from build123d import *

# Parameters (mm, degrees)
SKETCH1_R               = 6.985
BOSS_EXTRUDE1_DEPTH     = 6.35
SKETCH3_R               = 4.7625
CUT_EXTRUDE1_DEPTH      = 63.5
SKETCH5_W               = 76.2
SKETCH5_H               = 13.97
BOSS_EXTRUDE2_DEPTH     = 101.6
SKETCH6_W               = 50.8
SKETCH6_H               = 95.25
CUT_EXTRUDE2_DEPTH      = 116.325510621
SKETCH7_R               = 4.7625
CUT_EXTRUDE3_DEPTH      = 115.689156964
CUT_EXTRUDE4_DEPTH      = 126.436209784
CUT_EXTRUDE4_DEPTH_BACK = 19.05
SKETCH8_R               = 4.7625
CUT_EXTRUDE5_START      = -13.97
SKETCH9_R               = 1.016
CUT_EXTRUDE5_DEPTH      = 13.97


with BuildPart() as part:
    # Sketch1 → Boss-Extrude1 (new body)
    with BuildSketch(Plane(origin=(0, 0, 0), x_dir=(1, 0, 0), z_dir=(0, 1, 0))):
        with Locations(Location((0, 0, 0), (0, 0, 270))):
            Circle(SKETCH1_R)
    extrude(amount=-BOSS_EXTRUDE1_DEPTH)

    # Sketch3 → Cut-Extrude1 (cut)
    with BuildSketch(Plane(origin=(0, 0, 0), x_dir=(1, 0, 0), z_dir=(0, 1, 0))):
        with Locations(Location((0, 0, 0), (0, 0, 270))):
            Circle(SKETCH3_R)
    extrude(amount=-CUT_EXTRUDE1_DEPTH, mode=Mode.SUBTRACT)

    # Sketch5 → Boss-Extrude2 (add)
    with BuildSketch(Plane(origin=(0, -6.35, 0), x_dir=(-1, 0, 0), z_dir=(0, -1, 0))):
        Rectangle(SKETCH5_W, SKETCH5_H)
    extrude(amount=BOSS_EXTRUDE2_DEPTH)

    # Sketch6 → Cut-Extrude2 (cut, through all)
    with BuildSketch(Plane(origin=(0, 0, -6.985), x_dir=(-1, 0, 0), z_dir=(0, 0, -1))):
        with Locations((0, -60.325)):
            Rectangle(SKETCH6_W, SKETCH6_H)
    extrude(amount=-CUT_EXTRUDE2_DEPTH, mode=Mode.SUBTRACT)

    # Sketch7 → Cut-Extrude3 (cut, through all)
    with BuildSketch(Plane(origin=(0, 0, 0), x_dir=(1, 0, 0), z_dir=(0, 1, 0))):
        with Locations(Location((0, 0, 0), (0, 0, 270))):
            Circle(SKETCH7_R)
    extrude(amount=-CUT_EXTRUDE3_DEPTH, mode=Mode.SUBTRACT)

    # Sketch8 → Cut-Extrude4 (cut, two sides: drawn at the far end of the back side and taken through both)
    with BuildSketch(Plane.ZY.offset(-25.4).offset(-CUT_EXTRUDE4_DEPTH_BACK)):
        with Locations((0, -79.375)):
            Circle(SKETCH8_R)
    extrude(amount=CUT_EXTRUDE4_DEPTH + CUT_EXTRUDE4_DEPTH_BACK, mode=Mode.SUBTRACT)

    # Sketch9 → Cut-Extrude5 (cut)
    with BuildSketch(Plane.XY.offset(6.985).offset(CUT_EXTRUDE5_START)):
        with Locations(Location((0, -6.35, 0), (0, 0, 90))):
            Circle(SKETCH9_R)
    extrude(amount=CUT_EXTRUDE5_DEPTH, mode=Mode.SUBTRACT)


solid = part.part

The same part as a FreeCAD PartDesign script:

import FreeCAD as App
import Part
import Sketcher
Q = App.Units.Quantity

doc = App.newDocument("Part")
body = doc.addObject("PartDesign::Body", "Body")

# Sketch on XZ plane
sketch1 = body.newObject("Sketcher::SketchObject", "Sketch")
sketch1.AttachmentSupport = (doc.getObject("XZ_Plane"), [""])
sketch1.MapMode = "FlatFace"
sketch1.addGeometry(Part.Circle(App.Vector(0, 0, 0), App.Vector(0, 0, 1), 7), False)
sketch1.addConstraint(Sketcher.Constraint("Coincident", 0, 3, -1, 1))
sketch1.addConstraint(Sketcher.Constraint("Diameter", 0, Q("0.55 in")))
pad1 = body.newObject("PartDesign::Pad", "Pad")
pad1.Profile = sketch1
pad1.Length = Q("0.25 in")

# Sketch on XZ plane
sketch2 = body.newObject("Sketcher::SketchObject", "Sketch001")
sketch2.AttachmentSupport = (doc.getObject("XZ_Plane"), [""])
sketch2.MapMode = "FlatFace"
sketch2.addGeometry(Part.Circle(App.Vector(0, 0, 0), App.Vector(0, 0, 1), 4.8), False)
sketch2.addConstraint(Sketcher.Constraint("Coincident", 0, 3, -1, 1))
sketch2.addConstraint(Sketcher.Constraint("Diameter", 0, Q("0.375 in")))
pocket1 = body.newObject("PartDesign::Pocket", "Pocket")
pocket1.Profile = sketch2
pocket1.Length = Q("2.5 in")
pocket1.Reversed = True

# Sketch on XZ plane
sketch3 = body.newObject("Sketcher::SketchObject", "Sketch002")
sketch3.AttachmentSupport = (doc.getObject("XZ_Plane"), [""])
sketch3.MapMode = "FlatFace"
sketch3.AttachmentOffset = App.Placement(App.Vector(0, 0, 0.25 * 25.4), App.Rotation())
sketch3.addGeometry(Part.LineSegment(App.Vector(38, -7, 0), App.Vector(38, 7, 0)), False)
sketch3.addGeometry(Part.LineSegment(App.Vector(38, 7, 0), App.Vector(-38, 7, 0)), False)
sketch3.addGeometry(Part.LineSegment(App.Vector(-38, 7, 0), App.Vector(-38, -7, 0)), False)
sketch3.addGeometry(Part.LineSegment(App.Vector(-38, -7, 0), App.Vector(38, -7, 0)), False)
sketch3.addConstraint(Sketcher.Constraint("Coincident", 0, 2, 1, 1))
sketch3.addConstraint(Sketcher.Constraint("Coincident", 1, 2, 2, 1))
sketch3.addConstraint(Sketcher.Constraint("Coincident", 2, 2, 3, 1))
sketch3.addConstraint(Sketcher.Constraint("Coincident", 3, 2, 0, 1))
sketch3.addConstraint(Sketcher.Constraint("Vertical", 0))
sketch3.addConstraint(Sketcher.Constraint("Horizontal", 1))
sketch3.addConstraint(Sketcher.Constraint("Vertical", 2))
sketch3.addConstraint(Sketcher.Constraint("Horizontal", 3))
sketch3.addConstraint(Sketcher.Constraint("Symmetric", 0, 2, 2, 2, -1, 1))
sketch3.addConstraint(Sketcher.Constraint("DistanceX", 1, 2, 1, 1, Q("3 in")))
sketch3.addConstraint(Sketcher.Constraint("DistanceY", 0, 1, 0, 2, Q("0.55 in")))
pad2 = body.newObject("PartDesign::Pad", "Pad001")
pad2.Profile = sketch3
pad2.Length = Q("4 in")

# Sketch on XY plane
sketch4 = body.newObject("Sketcher::SketchObject", "Sketch003")
sketch4.AttachmentSupport = (doc.getObject("XY_Plane"), [""])
sketch4.MapMode = "FlatFace"
sketch4.AttachmentOffset = App.Placement(App.Vector(0, 0, -0.275 * 25.4), App.Rotation())
sketch4.addGeometry(Part.LineSegment(App.Vector(25, -13, 0), App.Vector(25, -108, 0)), False)
sketch4.addGeometry(Part.LineSegment(App.Vector(25, -108, 0), App.Vector(-25, -108, 0)), False)
sketch4.addGeometry(Part.LineSegment(App.Vector(-25, -108, 0), App.Vector(-25, -13, 0)), False)
sketch4.addGeometry(Part.LineSegment(App.Vector(-25, -13, 0), App.Vector(25, -13, 0)), False)
sketch4.addConstraint(Sketcher.Constraint("Coincident", 0, 2, 1, 1))
sketch4.addConstraint(Sketcher.Constraint("Coincident", 1, 2, 2, 1))
sketch4.addConstraint(Sketcher.Constraint("Coincident", 2, 2, 3, 1))
sketch4.addConstraint(Sketcher.Constraint("Coincident", 3, 2, 0, 1))
sketch4.addConstraint(Sketcher.Constraint("Vertical", 0))
sketch4.addConstraint(Sketcher.Constraint("Horizontal", 1))
sketch4.addConstraint(Sketcher.Constraint("Vertical", 2))
sketch4.addConstraint(Sketcher.Constraint("Horizontal", 3))
sketch4.addConstraint(Sketcher.Constraint("DistanceX", 1, 2, 1, 1, Q("2 in")))
sketch4.addConstraint(Sketcher.Constraint("DistanceX", -1, 1, 0, 2, Q("1 in")))
sketch4.addConstraint(Sketcher.Constraint("DistanceY", 0, 2, 0, 1, Q("3.75 in")))
sketch4.addConstraint(Sketcher.Constraint("DistanceY", 2, 2, -1, 1, Q("0.5 in")))
pocket2 = body.newObject("PartDesign::Pocket", "Pocket001")
pocket2.Profile = sketch4
pocket2.Type = "ThroughAll"
pocket2.Reversed = True

# Sketch on XZ plane
sketch5 = body.newObject("Sketcher::SketchObject", "Sketch004")
sketch5.AttachmentSupport = (doc.getObject("XZ_Plane"), [""])
sketch5.MapMode = "FlatFace"
sketch5.addGeometry(Part.Circle(App.Vector(0, 0, 0), App.Vector(0, 0, 1), 4.8), False)
sketch5.addConstraint(Sketcher.Constraint("Coincident", 0, 3, -1, 1))
sketch5.addConstraint(Sketcher.Constraint("Diameter", 0, Q("0.375 in")))
pocket3 = body.newObject("PartDesign::Pocket", "Pocket002")
pocket3.Profile = sketch5
pocket3.Type = "ThroughAll"
pocket3.Reversed = True

# Sketch on YZ plane
sketch6 = body.newObject("Sketcher::SketchObject", "Sketch005")
sketch6.AttachmentSupport = (doc.getObject("YZ_Plane"), [""])
sketch6.MapMode = "FlatFace"
sketch6.AttachmentOffset = App.Placement(App.Vector(0, 0, 1 * 25.4), App.Rotation())
sketch6.addGeometry(Part.Circle(App.Vector(-79.4, 0, 0), App.Vector(0, 0, 1), 4.8), False)
sketch6.addConstraint(Sketcher.Constraint("PointOnObject", 0, 3, -1))
sketch6.addConstraint(Sketcher.Constraint("Diameter", 0, Q("0.375 in")))
sketch6.addConstraint(Sketcher.Constraint("DistanceX", 0, 3, -1, 1, Q("3.125 in")))
pocket4 = body.newObject("PartDesign::Pocket", "Pocket003")
pocket4.Profile = sketch6
pocket4.Type = "ThroughAll"
pocket4.Midplane = True

# Sketch on XY plane
sketch7 = body.newObject("Sketcher::SketchObject", "Sketch006")
sketch7.AttachmentSupport = (doc.getObject("XY_Plane"), [""])
sketch7.MapMode = "FlatFace"
sketch7.AttachmentOffset = App.Placement(App.Vector(0, 0, -0.275 * 25.4), App.Rotation())
sketch7.addGeometry(Part.Circle(App.Vector(0, -6.3, 0), App.Vector(0, 0, 1), 1), False)
sketch7.addConstraint(Sketcher.Constraint("PointOnObject", 0, 3, -2))
sketch7.addConstraint(Sketcher.Constraint("Diameter", 0, Q("0.08 in")))
sketch7.addConstraint(Sketcher.Constraint("DistanceY", 0, 3, -1, 1, Q("0.25 in")))
pocket5 = body.newObject("PartDesign::Pocket", "Pocket004")
pocket5.Profile = sketch7
pocket5.Length = Q("0.55 in")
pocket5.Reversed = True

doc.recompute()
